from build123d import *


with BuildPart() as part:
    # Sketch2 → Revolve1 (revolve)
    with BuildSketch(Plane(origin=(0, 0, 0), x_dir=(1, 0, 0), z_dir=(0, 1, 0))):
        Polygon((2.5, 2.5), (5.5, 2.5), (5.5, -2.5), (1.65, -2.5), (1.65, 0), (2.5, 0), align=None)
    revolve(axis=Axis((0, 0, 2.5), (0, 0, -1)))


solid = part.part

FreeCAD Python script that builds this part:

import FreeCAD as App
import Part
import Sketcher
from FreeCAD import Vector


def add_polygon(sketch, points):
    """Adds a closed chain of lines whose ends are joined by coincident constraints."""
    first, n = sketch.GeometryCount, len(points)
    for a, b in zip(points, points[1:] + points[:1]):
        sketch.addGeometry(Part.LineSegment(App.Vector(*a, 0), App.Vector(*b, 0)), False)
    for i in range(n):
        sketch.addConstraint(Sketcher.Constraint("Coincident", first + i, 2, first + (i + 1) % n, 1))

doc = App.newDocument("Part")
body = doc.addObject("PartDesign::Body", "Body")

sketch1 = body.newObject("Sketcher::SketchObject", "Sketch")
sketch1.AttachmentSupport = (doc.getObject("XZ_Plane"), [""])
sketch1.MapMode = "FlatFace"
add_polygon(sketch1, [(5.5, -2.5), (2.5, -2.5), (2.5, 0), (1.6, 0), (1.6, 2.5), (5.5, 2.5)])
sketch1.addConstraint([
    Sketcher.Constraint("Horizontal", 0),
    Sketcher.Constraint("Vertical", 1),
    Sketcher.Constraint("Horizontal", 2),
    Sketcher.Constraint("Vertical", 3),
    Sketcher.Constraint("Horizontal", 4),
    Sketcher.Constraint("Vertical", 5),
    Sketcher.Constraint("PointOnObject", 1, 2, -1),
    Sketcher.Constraint("Equal", 1, 3),
    Sketcher.Constraint("DistanceX", 0, 2, 0, 1, 3.0),
    Sketcher.Constraint("DistanceY", 5, 2, 5, 1, 5.0),
    Sketcher.Constraint("DistanceX", 2, 2, 2, 1, 0.85),
    Sketcher.Constraint("DistanceX", -1, 1, 0, 2, 2.5),
])
revolution = body.newObject("PartDesign::Revolution", "Revolution")
revolution.Profile = sketch1
revolution.ReferenceAxis = (sketch1, ["V_Axis"])
revolution.Angle = 360

doc.recompute()
